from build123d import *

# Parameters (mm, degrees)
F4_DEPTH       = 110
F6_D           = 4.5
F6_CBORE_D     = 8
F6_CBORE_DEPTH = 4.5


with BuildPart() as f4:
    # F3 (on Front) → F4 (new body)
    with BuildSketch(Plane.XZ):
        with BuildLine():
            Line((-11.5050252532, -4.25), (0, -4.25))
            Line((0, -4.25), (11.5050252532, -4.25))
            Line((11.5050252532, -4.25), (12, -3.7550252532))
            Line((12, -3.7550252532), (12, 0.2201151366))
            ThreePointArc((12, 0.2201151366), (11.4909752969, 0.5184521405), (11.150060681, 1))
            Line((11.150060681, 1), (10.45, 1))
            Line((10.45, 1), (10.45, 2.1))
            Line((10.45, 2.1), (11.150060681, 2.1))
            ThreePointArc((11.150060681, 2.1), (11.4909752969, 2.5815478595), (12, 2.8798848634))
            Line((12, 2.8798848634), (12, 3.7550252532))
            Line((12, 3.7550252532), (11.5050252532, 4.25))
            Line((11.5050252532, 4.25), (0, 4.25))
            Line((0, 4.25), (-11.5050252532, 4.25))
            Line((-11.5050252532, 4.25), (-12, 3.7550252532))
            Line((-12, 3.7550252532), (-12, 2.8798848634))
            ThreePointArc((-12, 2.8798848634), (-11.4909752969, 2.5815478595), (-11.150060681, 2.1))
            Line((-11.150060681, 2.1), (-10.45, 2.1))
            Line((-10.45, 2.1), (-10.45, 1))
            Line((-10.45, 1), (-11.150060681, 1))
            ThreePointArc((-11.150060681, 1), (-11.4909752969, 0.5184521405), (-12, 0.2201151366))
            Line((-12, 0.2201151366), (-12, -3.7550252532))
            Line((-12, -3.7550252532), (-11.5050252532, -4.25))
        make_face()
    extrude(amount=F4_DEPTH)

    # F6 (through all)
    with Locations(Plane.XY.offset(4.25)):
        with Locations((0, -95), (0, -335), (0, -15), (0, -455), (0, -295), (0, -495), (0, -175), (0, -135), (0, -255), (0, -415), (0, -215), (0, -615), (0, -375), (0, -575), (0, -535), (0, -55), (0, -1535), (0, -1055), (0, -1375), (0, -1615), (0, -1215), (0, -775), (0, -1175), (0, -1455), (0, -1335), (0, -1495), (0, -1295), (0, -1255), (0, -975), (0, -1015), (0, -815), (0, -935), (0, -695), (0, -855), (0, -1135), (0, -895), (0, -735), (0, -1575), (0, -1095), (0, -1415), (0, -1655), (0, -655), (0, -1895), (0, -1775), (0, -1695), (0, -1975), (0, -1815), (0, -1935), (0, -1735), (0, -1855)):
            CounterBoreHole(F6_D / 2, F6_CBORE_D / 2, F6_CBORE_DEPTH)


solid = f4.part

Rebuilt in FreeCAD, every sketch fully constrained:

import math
import FreeCAD as App
import Part
import Sketcher
from FreeCAD import Vector

doc = App.newDocument("Part")
body = doc.addObject("PartDesign::Body", "Body")

# Sketch on XZ plane
sketch1 = body.newObject("Sketcher::SketchObject", "Sketch")
sketch1.AttachmentSupport = (doc.getObject("XZ_Plane"), [""])
sketch1.MapMode = "FlatFace"
sketch1.addGeometry([
    Part.LineSegment(Vector(-11.5, -4.2, 0), Vector(11.5, -4.2, 0)),  # 0
    Part.LineSegment(Vector(11.5, -4.2, 0), Vector(12, -3.8, 0)),  # 1
    Part.LineSegment(Vector(12, -3.8, 0), Vector(12, 0.2, 0)),  # 2
    Part.ArcOfCircle(Part.Circle(Vector(12.4, 1.6, 0), Vector(0, 0, 1), 1.4), math.radians(-157), math.radians(-108)),  # 3
    Part.LineSegment(Vector(11.2, 1, 0), Vector(10.4, 1, 0)),  # 4
    Part.LineSegment(Vector(10.4, 1, 0), Vector(10.4, 2.1, 0)),  # 5
    Part.LineSegment(Vector(10.4, 2.1, 0), Vector(11.2, 2.1, 0)),  # 6
    Part.ArcOfCircle(Part.Circle(Vector(12.4, 1.6, 0), Vector(0, 0, 1), 1.4), math.radians(108), math.radians(157)),  # 7
    Part.LineSegment(Vector(12, 2.9, 0), Vector(12, 3.8, 0)),  # 8
    Part.LineSegment(Vector(12, 3.8, 0), Vector(11.5, 4.2, 0)),  # 9
    Part.LineSegment(Vector(11.5, 4.2, 0), Vector(-11.5, 4.2, 0)),  # 10
    Part.LineSegment(Vector(-11.5, 4.2, 0), Vector(-12, 3.8, 0)),  # 11
    Part.LineSegment(Vector(-12, 3.8, 0), Vector(-12, 2.9, 0)),  # 12
    Part.ArcOfCircle(Part.Circle(Vector(-12.4, 1.6, 0), Vector(0, 0, 1), 1.4), math.radians(23), math.radians(72)),  # 13
    Part.LineSegment(Vector(-11.2, 2.1, 0), Vector(-10.4, 2.1, 0)),  # 14
    Part.LineSegment(Vector(-10.4, 2.1, 0), Vector(-10.4, 1, 0)),  # 15
    Part.LineSegment(Vector(-10.4, 1, 0), Vector(-11.2, 1, 0)),  # 16
    Part.ArcOfCircle(Part.Circle(Vector(-12.4, 1.6, 0), Vector(0, 0, 1), 1.4), math.radians(-72), math.radians(-23)),  # 17
    Part.LineSegment(Vector(-12, 0.2, 0), Vector(-12, -3.8, 0)),  # 18
    Part.LineSegment(Vector(-12, -3.8, 0), Vector(-11.5, -4.2, 0)),  # 19
], False)
sketch1.addConstraint([
    Sketcher.Constraint("Coincident", 0, 2, 1, 1),
    Sketcher.Constraint("Coincident", 1, 2, 2, 1),
    Sketcher.Constraint("Coincident", 2, 2, 3, 2),
    Sketcher.Constraint("Coincident", 3, 1, 4, 1),
    Sketcher.Constraint("Coincident", 4, 2, 5, 1),
    Sketcher.Constraint("Coincident", 5, 2, 6, 1),
    Sketcher.Constraint("Coincident", 6, 2, 7, 2),
    Sketcher.Constraint("Coincident", 7, 1, 8, 1),
    Sketcher.Constraint("Coincident", 8, 2, 9, 1),
    Sketcher.Constraint("Coincident", 9, 2, 10, 1),
    Sketcher.Constraint("Coincident", 10, 2, 11, 1),
    Sketcher.Constraint("Coincident", 11, 2, 12, 1),
    Sketcher.Constraint("Coincident", 12, 2, 13, 2),
    Sketcher.Constraint("Coincident", 13, 1, 14, 1),
    Sketcher.Constraint("Coincident", 14, 2, 15, 1),
    Sketcher.Constraint("Coincident", 15, 2, 16, 1),
    Sketcher.Constraint("Coincident", 16, 2, 17, 2),
    Sketcher.Constraint("Coincident", 17, 1, 18, 1),
    Sketcher.Constraint("Coincident", 18, 2, 19, 1),
    Sketcher.Constraint("Coincident", 19, 2, 0, 1),
    Sketcher.Constraint("Horizontal", 0),
    Sketcher.Constraint("Vertical", 2),
    Sketcher.Constraint("Horizontal", 4),
    Sketcher.Constraint("Vertical", 5),
    Sketcher.Constraint("Horizontal", 6),
    Sketcher.Constraint("Vertical", 8),
    Sketcher.Constraint("Horizontal", 10),
    Sketcher.Constraint("Vertical", 12),
    Sketcher.Constraint("Horizontal", 14),
    Sketcher.Constraint("Vertical", 15),
    Sketcher.Constraint("Horizontal", 16),
    Sketcher.Constraint("Vertical", 18),
    Sketcher.Constraint("Coincident", 7, 3, 3, 3),
    Sketcher.Constraint("Coincident", 17, 3, 13, 3),
    Sketcher.Constraint("Equal", 3, 7),
    Sketcher.Constraint("Equal", 7, 13),
    Sketcher.Constraint("Equal", 13, 17),
    Sketcher.Constraint("Symmetric", 0, 2, 10, 2, -1, 1),
    Sketcher.Constraint("Symmetric", 1, 2, 11, 2, -1, 1),
    Sketcher.Constraint("Symmetric", 8, 2, 18, 2, -1, 1),
    Sketcher.Constraint("Symmetric", 3, 3, 13, 3, -2),
    Sketcher.Constraint("Symmetric", 8, 2, 11, 2, -2),
    Sketcher.Constraint("Symmetric", 5, 2, 14, 2, -2),
    Sketcher.Constraint("Perpendicular", 1, 9),
    Sketcher.Constraint("Perpendicular", 11, 19),
    Sketcher.Constraint("Horizontal", 4, 2, 15, 2),
    Sketcher.Constraint("Vertical", 3, 1, 6, 2),
    Sketcher.Constraint("Vertical", 0, 2, 9, 2),
    Sketcher.Constraint("Radius", 3, 1.4),
    Sketcher.Constraint("DistanceY", 5, 1, 5, 2, 1.1),
    Sketcher.Constraint("DistanceX", -1, 1, 1, 2, 12.0),
    Sketcher.Constraint("DistanceY", -1, 1, 3, 1, 1.0),
    Sketcher.Constraint("Distance", 1, 0.7),
    Sketcher.Constraint("DistanceY", 0, 2, 3, 3, 5.8),
    Sketcher.Constraint("DistanceX", -1, 1, 4, 2, 10.45),
    Sketcher.Constraint("DistanceX", 13, 3, 3, 3, 24.875),
])
pad1 = body.newObject("PartDesign::Pad", "Pad")
pad1.Profile = sketch1
pad1.Length = 110

# Sketch on XY plane
sketch2 = body.newObject("Sketcher::SketchObject", "Sketch001")
sketch2.AttachmentSupport = (doc.getObject("XY_Plane"), [""])
sketch2.MapMode = "FlatFace"
sketch2.AttachmentOffset = App.Placement(Vector(0, 0, 4.25), App.Rotation())
sketch2.addGeometry([
    Part.Circle(Vector(0, -95, 0), Vector(0, 0, 1), 2.2),  # 0
    Part.Circle(Vector(0, -335, 0), Vector(0, 0, 1), 2.2),  # 1
    Part.Circle(Vector(0, -15, 0), Vector(0, 0, 1), 2.2),  # 2
    Part.Circle(Vector(0, -455, 0), Vector(0, 0, 1), 2.2),  # 3
    Part.Circle(Vector(0, -295, 0), Vector(0, 0, 1), 2.2),  # 4
    Part.Circle(Vector(0, -495, 0), Vector(0, 0, 1), 2.2),  # 5
    Part.Circle(Vector(0, -175, 0), Vector(0, 0, 1), 2.2),  # 6
    Part.Circle(Vector(0, -135, 0), Vector(0, 0, 1), 2.2),  # 7
    Part.Circle(Vector(0, -255, 0), Vector(0, 0, 1), 2.2),  # 8
    Part.Circle(Vector(0, -415, 0), Vector(0, 0, 1), 2.2),  # 9
    Part.Circle(Vector(0, -215, 0), Vector(0, 0, 1), 2.2),  # 10
    Part.Circle(Vector(0, -615, 0), Vector(0, 0, 1), 2.2),  # 11
    Part.Circle(Vector(0, -375, 0), Vector(0, 0, 1), 2.2),  # 12
    Part.Circle(Vector(0, -575, 0), Vector(0, 0, 1), 2.2),  # 13
    Part.Circle(Vector(0, -535, 0), Vector(0, 0, 1), 2.2),  # 14
    Part.Circle(Vector(0, -55, 0), Vector(0, 0, 1), 2.2),  # 15
    Part.Circle(Vector(0, -1535, 0), Vector(0, 0, 1), 2.2),  # 16
    Part.Circle(Vector(0, -1055, 0), Vector(0, 0, 1), 2.2),  # 17
    Part.Circle(Vector(0, -1375, 0), Vector(0, 0, 1), 2.2),  # 18
    Part.Circle(Vector(0, -1615, 0), Vector(0, 0, 1), 2.2),  # 19
    Part.Circle(Vector(0, -1215, 0), Vector(0, 0, 1), 2.2),  # 20
    Part.Circle(Vector(0, -775, 0), Vector(0, 0, 1), 2.2),  # 21
    Part.Circle(Vector(0, -1175, 0), Vector(0, 0, 1), 2.2),  # 22
    Part.Circle(Vector(0, -1455, 0), Vector(0, 0, 1), 2.2),  # 23
    Part.Circle(Vector(0, -1335, 0), Vector(0, 0, 1), 2.2),  # 24
    Part.Circle(Vector(0, -1495, 0), Vector(0, 0, 1), 2.2),  # 25
    Part.Circle(Vector(0, -1295, 0), Vector(0, 0, 1), 2.2),  # 26
    Part.Circle(Vector(0, -1255, 0), Vector(0, 0, 1), 2.2),  # 27
    Part.Circle(Vector(0, -975, 0), Vector(0, 0, 1), 2.2),  # 28
    Part.Circle(Vector(0, -1015, 0), Vector(0, 0, 1), 2.2),  # 29
    Part.Circle(Vector(0, -815, 0), Vector(0, 0, 1), 2.2),  # 30
    Part.Circle(Vector(0, -935, 0), Vector(0, 0, 1), 2.2),  # 31
    Part.Circle(Vector(0, -695, 0), Vector(0, 0, 1), 2.2),  # 32
    Part.Circle(Vector(0, -855, 0), Vector(0, 0, 1), 2.2),  # 33
    Part.Circle(Vector(0, -1135, 0), Vector(0, 0, 1), 2.2),  # 34
    Part.Circle(Vector(0, -895, 0), Vector(0, 0, 1), 2.2),  # 35
    Part.Circle(Vector(0, -735, 0), Vector(0, 0, 1), 2.2),  # 36
    Part.Circle(Vector(0, -1575, 0), Vector(0, 0, 1), 2.2),  # 37
    Part.Circle(Vector(0, -1095, 0), Vector(0, 0, 1), 2.2),  # 38
    Part.Circle(Vector(0, -1415, 0), Vector(0, 0, 1), 2.2),  # 39
    Part.Circle(Vector(0, -1655, 0), Vector(0, 0, 1), 2.2),  # 40
    Part.Circle(Vector(0, -655, 0), Vector(0, 0, 1), 2.2),  # 41
    Part.Circle(Vector(0, -1895, 0), Vector(0, 0, 1), 2.2),  # 42
    Part.Circle(Vector(0, -1775, 0), Vector(0, 0, 1), 2.2),  # 43
    Part.Circle(Vector(0, -1695, 0), Vector(0, 0, 1), 2.2),  # 44
    Part.Circle(Vector(0, -1975, 0), Vector(0, 0, 1), 2.2),  # 45
    Part.Circle(Vector(0, -1815, 0), Vector(0, 0, 1), 2.2),  # 46
    Part.Circle(Vector(0, -1935, 0), Vector(0, 0, 1), 2.2),  # 47
    Part.Circle(Vector(0, -1735, 0), Vector(0, 0, 1), 2.2),  # 48
    Part.Circle(Vector(0, -1855, 0), Vector(0, 0, 1), 2.2),  # 49
], False)
sketch2.addConstraint([
    Sketcher.Constraint("Equal", 0, 1),
    Sketcher.Constraint("Equal", 1, 2),
    Sketcher.Constraint("Equal", 2, 3),
    Sketcher.Constraint("Equal", 3, 4),
    Sketcher.Constraint("Equal", 4, 5),
    Sketcher.Constraint("Equal", 5, 6),
    Sketcher.Constraint("Equal", 6, 7),
    Sketcher.Constraint("Equal", 7, 8),
    Sketcher.Constraint("Equal", 8, 9),
    Sketcher.Constraint("Equal", 9, 10),
    Sketcher.Constraint("Equal", 10, 11),
    Sketcher.Constraint("Equal", 11, 12),
    Sketcher.Constraint("Equal", 12, 13),
    Sketcher.Constraint("Equal", 13, 14),
    Sketcher.Constraint("Equal", 14, 15),
    Sketcher.Constraint("Equal", 15, 16),
    Sketcher.Constraint("Equal", 16, 17),
    Sketcher.Constraint("Equal", 17, 18),
    Sketcher.Constraint("Equal", 18, 19),
    Sketcher.Constraint("Equal", 19, 20),
    Sketcher.Constraint("Equal", 20, 21),
    Sketcher.Constraint("Equal", 21, 22),
    Sketcher.Constraint("Equal", 22, 23),
    Sketcher.Constraint("Equal", 23, 24),
    Sketcher.Constraint("Equal", 24, 25),
    Sketcher.Constraint("Equal", 25, 26),
    Sketcher.Constraint("Equal", 26, 27),
    Sketcher.Constraint("Equal", 27, 28),
    Sketcher.Constraint("Equal", 28, 29),
    Sketcher.Constraint("Equal", 29, 30),
    Sketcher.Constraint("Equal", 30, 31),
    Sketcher.Constraint("Equal", 31, 32),
    Sketcher.Constraint("Equal", 32, 33),
    Sketcher.Constraint("Equal", 33, 34),
    Sketcher.Constraint("Equal", 34, 35),
    Sketcher.Constraint("Equal", 35, 36),
    Sketcher.Constraint("Equal", 36, 37),
    Sketcher.Constraint("Equal", 37, 38),
    Sketcher.Constraint("Equal", 38, 39),
    Sketcher.Constraint("Equal", 39, 40),
    Sketcher.Constraint("Equal", 40, 41),
    Sketcher.Constraint("Equal", 41, 42),
    Sketcher.Constraint("Equal", 42, 43),
    Sketcher.Constraint("Equal", 43, 44),
    Sketcher.Constraint("Equal", 44, 45),
    Sketcher.Constraint("Equal", 45, 46),
    Sketcher.Constraint("Equal", 46, 47),
    Sketcher.Constraint("Equal", 47, 48),
    Sketcher.Constraint("Equal", 48, 49),
    Sketcher.Constraint("PointOnObject", 0, 3, -2),
    Sketcher.Constraint("PointOnObject", 1, 3, -2),
    Sketcher.Constraint("PointOnObject", 2, 3, -2),
    Sketcher.Constraint("PointOnObject", 3, 3, -2),
    Sketcher.Constraint("PointOnObject", 4, 3, -2),
    Sketcher.Constraint("PointOnObject", 5, 3, -2),
    Sketcher.Constraint("PointOnObject", 6, 3, -2),
    Sketcher.Constraint("PointOnObject", 7, 3, -2),
    Sketcher.Constraint("PointOnObject", 8, 3, -2),
    Sketcher.Constraint("PointOnObject", 9, 3, -2),
    Sketcher.Constraint("PointOnObject", 10, 3, -2),
    Sketcher.Constraint("PointOnObject", 11, 3, -2),
    Sketcher.Constraint("PointOnObject", 12, 3, -2),
    Sketcher.Constraint("PointOnObject", 13, 3, -2),
    Sketcher.Constraint("PointOnObject", 14, 3, -2),
    Sketcher.Constraint("PointOnObject", 15, 3, -2),
    Sketcher.Constraint("PointOnObject", 16, 3, -2),
    Sketcher.Constraint("PointOnObject", 17, 3, -2),
    Sketcher.Constraint("PointOnObject", 18, 3, -2),
    Sketcher.Constraint("PointOnObject", 19, 3, -2),
    Sketcher.Constraint("PointOnObject", 20, 3, -2),
    Sketcher.Constraint("PointOnObject", 21, 3, -2),
    Sketcher.Constraint("PointOnObject", 22, 3, -2),
    Sketcher.Constraint("PointOnObject", 23, 3, -2),
    Sketcher.Constraint("PointOnObject", 24, 3, -2),
    Sketcher.Constraint("PointOnObject", 25, 3, -2),
    Sketcher.Constraint("PointOnObject", 26, 3, -2),
    Sketcher.Constraint("PointOnObject", 27, 3, -2),
    Sketcher.Constraint("PointOnObject", 28, 3, -2),
    Sketcher.Constraint("PointOnObject", 29, 3, -2),
    Sketcher.Constraint("PointOnObject", 30, 3, -2),
    Sketcher.Constraint("PointOnObject", 31, 3, -2),
    Sketcher.Constraint("PointOnObject", 32, 3, -2),
    Sketcher.Constraint("PointOnObject", 33, 3, -2),
    Sketcher.Constraint("PointOnObject", 34, 3, -2),
    Sketcher.Constraint("PointOnObject", 35, 3, -2),
    Sketcher.Constraint("PointOnObject", 36, 3, -2),
    Sketcher.Constraint("PointOnObject", 37, 3, -2),
    Sketcher.Constraint("PointOnObject", 38, 3, -2),
    Sketcher.Constraint("PointOnObject", 39, 3, -2),
    Sketcher.Constraint("PointOnObject", 40, 3, -2),
    Sketcher.Constraint("PointOnObject", 41, 3, -2),
    Sketcher.Constraint("PointOnObject", 42, 3, -2),
    Sketcher.Constraint("PointOnObject", 43, 3, -2),
    Sketcher.Constraint("PointOnObject", 44, 3, -2),
    Sketcher.Constraint("PointOnObject", 45, 3, -2),
    Sketcher.Constraint("PointOnObject", 46, 3, -2),
    Sketcher.Constraint("PointOnObject", 47, 3, -2),
    Sketcher.Constraint("PointOnObject", 48, 3, -2),
    Sketcher.Constraint("PointOnObject", 49, 3, -2),
    Sketcher.Constraint("Diameter", 0, 4.5),
    Sketcher.Constraint("DistanceY", 0, 3, -1, 1, 95.0),
    Sketcher.Constraint("DistanceY", 1, 3, -1, 1, 335.0),
    Sketcher.Constraint("DistanceY", 2, 3, -1, 1, 15.0),
    Sketcher.Constraint("DistanceY", 3, 3, -1, 1, 455.0),
    Sketcher.Constraint("DistanceY", 4, 3, -1, 1, 295.0),
    Sketcher.Constraint("DistanceY", 5, 3, -1, 1, 495.0),
    Sketcher.Constraint("DistanceY", 6, 3, -1, 1, 175.0),
    Sketcher.Constraint("DistanceY", 7, 3, -1, 1, 135.0),
    Sketcher.Constraint("DistanceY", 8, 3, -1, 1, 255.0),
    Sketcher.Constraint("DistanceY", 9, 3, -1, 1, 415.0),
    Sketcher.Constraint("DistanceY", 10, 3, -1, 1, 215.0),
    Sketcher.Constraint("DistanceY", 11, 3, -1, 1, 615.0),
    Sketcher.Constraint("DistanceY", 12, 3, -1, 1, 375.0),
    Sketcher.Constraint("DistanceY", 13, 3, -1, 1, 575.0),
    Sketcher.Constraint("DistanceY", 14, 3, -1, 1, 535.0),
    Sketcher.Constraint("DistanceY", 15, 3, -1, 1, 55.0),
    Sketcher.Constraint("DistanceY", 16, 3, -1, 1, 1535.0),
    Sketcher.Constraint("DistanceY", 17, 3, -1, 1, 1055.0),
    Sketcher.Constraint("DistanceY", 18, 3, -1, 1, 1375.0),
    Sketcher.Constraint("DistanceY", 19, 3, -1, 1, 1615.0),
    Sketcher.Constraint("DistanceY", 20, 3, -1, 1, 1215.0),
    Sketcher.Constraint("DistanceY", 21, 3, -1, 1, 775.0),
    Sketcher.Constraint("DistanceY", 22, 3, -1, 1, 1175.0),
    Sketcher.Constraint("DistanceY", 23, 3, -1, 1, 1455.0),
    Sketcher.Constraint("DistanceY", 24, 3, -1, 1, 1335.0),
    Sketcher.Constraint("DistanceY", 25, 3, -1, 1, 1495.0),
    Sketcher.Constraint("DistanceY", 26, 3, -1, 1, 1295.0),
    Sketcher.Constraint("DistanceY", 27, 3, -1, 1, 1255.0),
    Sketcher.Constraint("DistanceY", 28, 3, -1, 1, 975.0),
    Sketcher.Constraint("DistanceY", 29, 3, -1, 1, 1015.0),
    Sketcher.Constraint("DistanceY", 30, 3, -1, 1, 815.0),
    Sketcher.Constraint("DistanceY", 31, 3, -1, 1, 935.0),
    Sketcher.Constraint("DistanceY", 32, 3, -1, 1, 695.0),
    Sketcher.Constraint("DistanceY", 33, 3, -1, 1, 855.0),
    Sketcher.Constraint("DistanceY", 34, 3, -1, 1, 1135.0),
    Sketcher.Constraint("DistanceY", 35, 3, -1, 1, 895.0),
    Sketcher.Constraint("DistanceY", 36, 3, -1, 1, 735.0),
    Sketcher.Constraint("DistanceY", 37, 3, -1, 1, 1575.0),
    Sketcher.Constraint("DistanceY", 38, 3, -1, 1, 1095.0),
    Sketcher.Constraint("DistanceY", 39, 3, -1, 1, 1415.0),
    Sketcher.Constraint("DistanceY", 40, 3, -1, 1, 1655.0),
    Sketcher.Constraint("DistanceY", 41, 3, -1, 1, 655.0),
    Sketcher.Constraint("DistanceY", 42, 3, -1, 1, 1895.0),
    Sketcher.Constraint("DistanceY", 43, 3, -1, 1, 1775.0),
    Sketcher.Constraint("DistanceY", 44, 3, -1, 1, 1695.0),
    Sketcher.Constraint("DistanceY", 45, 3, -1, 1, 1975.0),
    Sketcher.Constraint("DistanceY", 46, 3, -1, 1, 1815.0),
    Sketcher.Constraint("DistanceY", 47, 3, -1, 1, 1935.0),
    Sketcher.Constraint("DistanceY", 48, 3, -1, 1, 1735.0),
    Sketcher.Constraint("DistanceY", 49, 3, -1, 1, 1855.0),
])
doc.recompute()
hole = body.newObject("PartDesign::Hole", "Hole")
hole.Profile = sketch2
hole.ThreadType = "None"
hole.Diameter = 4.5
hole.DepthType = "ThroughAll"
hole.HoleCutType = "Counterbore"
hole.HoleCutDiameter = 8
hole.HoleCutDepth = 4.5

doc.recompute()
